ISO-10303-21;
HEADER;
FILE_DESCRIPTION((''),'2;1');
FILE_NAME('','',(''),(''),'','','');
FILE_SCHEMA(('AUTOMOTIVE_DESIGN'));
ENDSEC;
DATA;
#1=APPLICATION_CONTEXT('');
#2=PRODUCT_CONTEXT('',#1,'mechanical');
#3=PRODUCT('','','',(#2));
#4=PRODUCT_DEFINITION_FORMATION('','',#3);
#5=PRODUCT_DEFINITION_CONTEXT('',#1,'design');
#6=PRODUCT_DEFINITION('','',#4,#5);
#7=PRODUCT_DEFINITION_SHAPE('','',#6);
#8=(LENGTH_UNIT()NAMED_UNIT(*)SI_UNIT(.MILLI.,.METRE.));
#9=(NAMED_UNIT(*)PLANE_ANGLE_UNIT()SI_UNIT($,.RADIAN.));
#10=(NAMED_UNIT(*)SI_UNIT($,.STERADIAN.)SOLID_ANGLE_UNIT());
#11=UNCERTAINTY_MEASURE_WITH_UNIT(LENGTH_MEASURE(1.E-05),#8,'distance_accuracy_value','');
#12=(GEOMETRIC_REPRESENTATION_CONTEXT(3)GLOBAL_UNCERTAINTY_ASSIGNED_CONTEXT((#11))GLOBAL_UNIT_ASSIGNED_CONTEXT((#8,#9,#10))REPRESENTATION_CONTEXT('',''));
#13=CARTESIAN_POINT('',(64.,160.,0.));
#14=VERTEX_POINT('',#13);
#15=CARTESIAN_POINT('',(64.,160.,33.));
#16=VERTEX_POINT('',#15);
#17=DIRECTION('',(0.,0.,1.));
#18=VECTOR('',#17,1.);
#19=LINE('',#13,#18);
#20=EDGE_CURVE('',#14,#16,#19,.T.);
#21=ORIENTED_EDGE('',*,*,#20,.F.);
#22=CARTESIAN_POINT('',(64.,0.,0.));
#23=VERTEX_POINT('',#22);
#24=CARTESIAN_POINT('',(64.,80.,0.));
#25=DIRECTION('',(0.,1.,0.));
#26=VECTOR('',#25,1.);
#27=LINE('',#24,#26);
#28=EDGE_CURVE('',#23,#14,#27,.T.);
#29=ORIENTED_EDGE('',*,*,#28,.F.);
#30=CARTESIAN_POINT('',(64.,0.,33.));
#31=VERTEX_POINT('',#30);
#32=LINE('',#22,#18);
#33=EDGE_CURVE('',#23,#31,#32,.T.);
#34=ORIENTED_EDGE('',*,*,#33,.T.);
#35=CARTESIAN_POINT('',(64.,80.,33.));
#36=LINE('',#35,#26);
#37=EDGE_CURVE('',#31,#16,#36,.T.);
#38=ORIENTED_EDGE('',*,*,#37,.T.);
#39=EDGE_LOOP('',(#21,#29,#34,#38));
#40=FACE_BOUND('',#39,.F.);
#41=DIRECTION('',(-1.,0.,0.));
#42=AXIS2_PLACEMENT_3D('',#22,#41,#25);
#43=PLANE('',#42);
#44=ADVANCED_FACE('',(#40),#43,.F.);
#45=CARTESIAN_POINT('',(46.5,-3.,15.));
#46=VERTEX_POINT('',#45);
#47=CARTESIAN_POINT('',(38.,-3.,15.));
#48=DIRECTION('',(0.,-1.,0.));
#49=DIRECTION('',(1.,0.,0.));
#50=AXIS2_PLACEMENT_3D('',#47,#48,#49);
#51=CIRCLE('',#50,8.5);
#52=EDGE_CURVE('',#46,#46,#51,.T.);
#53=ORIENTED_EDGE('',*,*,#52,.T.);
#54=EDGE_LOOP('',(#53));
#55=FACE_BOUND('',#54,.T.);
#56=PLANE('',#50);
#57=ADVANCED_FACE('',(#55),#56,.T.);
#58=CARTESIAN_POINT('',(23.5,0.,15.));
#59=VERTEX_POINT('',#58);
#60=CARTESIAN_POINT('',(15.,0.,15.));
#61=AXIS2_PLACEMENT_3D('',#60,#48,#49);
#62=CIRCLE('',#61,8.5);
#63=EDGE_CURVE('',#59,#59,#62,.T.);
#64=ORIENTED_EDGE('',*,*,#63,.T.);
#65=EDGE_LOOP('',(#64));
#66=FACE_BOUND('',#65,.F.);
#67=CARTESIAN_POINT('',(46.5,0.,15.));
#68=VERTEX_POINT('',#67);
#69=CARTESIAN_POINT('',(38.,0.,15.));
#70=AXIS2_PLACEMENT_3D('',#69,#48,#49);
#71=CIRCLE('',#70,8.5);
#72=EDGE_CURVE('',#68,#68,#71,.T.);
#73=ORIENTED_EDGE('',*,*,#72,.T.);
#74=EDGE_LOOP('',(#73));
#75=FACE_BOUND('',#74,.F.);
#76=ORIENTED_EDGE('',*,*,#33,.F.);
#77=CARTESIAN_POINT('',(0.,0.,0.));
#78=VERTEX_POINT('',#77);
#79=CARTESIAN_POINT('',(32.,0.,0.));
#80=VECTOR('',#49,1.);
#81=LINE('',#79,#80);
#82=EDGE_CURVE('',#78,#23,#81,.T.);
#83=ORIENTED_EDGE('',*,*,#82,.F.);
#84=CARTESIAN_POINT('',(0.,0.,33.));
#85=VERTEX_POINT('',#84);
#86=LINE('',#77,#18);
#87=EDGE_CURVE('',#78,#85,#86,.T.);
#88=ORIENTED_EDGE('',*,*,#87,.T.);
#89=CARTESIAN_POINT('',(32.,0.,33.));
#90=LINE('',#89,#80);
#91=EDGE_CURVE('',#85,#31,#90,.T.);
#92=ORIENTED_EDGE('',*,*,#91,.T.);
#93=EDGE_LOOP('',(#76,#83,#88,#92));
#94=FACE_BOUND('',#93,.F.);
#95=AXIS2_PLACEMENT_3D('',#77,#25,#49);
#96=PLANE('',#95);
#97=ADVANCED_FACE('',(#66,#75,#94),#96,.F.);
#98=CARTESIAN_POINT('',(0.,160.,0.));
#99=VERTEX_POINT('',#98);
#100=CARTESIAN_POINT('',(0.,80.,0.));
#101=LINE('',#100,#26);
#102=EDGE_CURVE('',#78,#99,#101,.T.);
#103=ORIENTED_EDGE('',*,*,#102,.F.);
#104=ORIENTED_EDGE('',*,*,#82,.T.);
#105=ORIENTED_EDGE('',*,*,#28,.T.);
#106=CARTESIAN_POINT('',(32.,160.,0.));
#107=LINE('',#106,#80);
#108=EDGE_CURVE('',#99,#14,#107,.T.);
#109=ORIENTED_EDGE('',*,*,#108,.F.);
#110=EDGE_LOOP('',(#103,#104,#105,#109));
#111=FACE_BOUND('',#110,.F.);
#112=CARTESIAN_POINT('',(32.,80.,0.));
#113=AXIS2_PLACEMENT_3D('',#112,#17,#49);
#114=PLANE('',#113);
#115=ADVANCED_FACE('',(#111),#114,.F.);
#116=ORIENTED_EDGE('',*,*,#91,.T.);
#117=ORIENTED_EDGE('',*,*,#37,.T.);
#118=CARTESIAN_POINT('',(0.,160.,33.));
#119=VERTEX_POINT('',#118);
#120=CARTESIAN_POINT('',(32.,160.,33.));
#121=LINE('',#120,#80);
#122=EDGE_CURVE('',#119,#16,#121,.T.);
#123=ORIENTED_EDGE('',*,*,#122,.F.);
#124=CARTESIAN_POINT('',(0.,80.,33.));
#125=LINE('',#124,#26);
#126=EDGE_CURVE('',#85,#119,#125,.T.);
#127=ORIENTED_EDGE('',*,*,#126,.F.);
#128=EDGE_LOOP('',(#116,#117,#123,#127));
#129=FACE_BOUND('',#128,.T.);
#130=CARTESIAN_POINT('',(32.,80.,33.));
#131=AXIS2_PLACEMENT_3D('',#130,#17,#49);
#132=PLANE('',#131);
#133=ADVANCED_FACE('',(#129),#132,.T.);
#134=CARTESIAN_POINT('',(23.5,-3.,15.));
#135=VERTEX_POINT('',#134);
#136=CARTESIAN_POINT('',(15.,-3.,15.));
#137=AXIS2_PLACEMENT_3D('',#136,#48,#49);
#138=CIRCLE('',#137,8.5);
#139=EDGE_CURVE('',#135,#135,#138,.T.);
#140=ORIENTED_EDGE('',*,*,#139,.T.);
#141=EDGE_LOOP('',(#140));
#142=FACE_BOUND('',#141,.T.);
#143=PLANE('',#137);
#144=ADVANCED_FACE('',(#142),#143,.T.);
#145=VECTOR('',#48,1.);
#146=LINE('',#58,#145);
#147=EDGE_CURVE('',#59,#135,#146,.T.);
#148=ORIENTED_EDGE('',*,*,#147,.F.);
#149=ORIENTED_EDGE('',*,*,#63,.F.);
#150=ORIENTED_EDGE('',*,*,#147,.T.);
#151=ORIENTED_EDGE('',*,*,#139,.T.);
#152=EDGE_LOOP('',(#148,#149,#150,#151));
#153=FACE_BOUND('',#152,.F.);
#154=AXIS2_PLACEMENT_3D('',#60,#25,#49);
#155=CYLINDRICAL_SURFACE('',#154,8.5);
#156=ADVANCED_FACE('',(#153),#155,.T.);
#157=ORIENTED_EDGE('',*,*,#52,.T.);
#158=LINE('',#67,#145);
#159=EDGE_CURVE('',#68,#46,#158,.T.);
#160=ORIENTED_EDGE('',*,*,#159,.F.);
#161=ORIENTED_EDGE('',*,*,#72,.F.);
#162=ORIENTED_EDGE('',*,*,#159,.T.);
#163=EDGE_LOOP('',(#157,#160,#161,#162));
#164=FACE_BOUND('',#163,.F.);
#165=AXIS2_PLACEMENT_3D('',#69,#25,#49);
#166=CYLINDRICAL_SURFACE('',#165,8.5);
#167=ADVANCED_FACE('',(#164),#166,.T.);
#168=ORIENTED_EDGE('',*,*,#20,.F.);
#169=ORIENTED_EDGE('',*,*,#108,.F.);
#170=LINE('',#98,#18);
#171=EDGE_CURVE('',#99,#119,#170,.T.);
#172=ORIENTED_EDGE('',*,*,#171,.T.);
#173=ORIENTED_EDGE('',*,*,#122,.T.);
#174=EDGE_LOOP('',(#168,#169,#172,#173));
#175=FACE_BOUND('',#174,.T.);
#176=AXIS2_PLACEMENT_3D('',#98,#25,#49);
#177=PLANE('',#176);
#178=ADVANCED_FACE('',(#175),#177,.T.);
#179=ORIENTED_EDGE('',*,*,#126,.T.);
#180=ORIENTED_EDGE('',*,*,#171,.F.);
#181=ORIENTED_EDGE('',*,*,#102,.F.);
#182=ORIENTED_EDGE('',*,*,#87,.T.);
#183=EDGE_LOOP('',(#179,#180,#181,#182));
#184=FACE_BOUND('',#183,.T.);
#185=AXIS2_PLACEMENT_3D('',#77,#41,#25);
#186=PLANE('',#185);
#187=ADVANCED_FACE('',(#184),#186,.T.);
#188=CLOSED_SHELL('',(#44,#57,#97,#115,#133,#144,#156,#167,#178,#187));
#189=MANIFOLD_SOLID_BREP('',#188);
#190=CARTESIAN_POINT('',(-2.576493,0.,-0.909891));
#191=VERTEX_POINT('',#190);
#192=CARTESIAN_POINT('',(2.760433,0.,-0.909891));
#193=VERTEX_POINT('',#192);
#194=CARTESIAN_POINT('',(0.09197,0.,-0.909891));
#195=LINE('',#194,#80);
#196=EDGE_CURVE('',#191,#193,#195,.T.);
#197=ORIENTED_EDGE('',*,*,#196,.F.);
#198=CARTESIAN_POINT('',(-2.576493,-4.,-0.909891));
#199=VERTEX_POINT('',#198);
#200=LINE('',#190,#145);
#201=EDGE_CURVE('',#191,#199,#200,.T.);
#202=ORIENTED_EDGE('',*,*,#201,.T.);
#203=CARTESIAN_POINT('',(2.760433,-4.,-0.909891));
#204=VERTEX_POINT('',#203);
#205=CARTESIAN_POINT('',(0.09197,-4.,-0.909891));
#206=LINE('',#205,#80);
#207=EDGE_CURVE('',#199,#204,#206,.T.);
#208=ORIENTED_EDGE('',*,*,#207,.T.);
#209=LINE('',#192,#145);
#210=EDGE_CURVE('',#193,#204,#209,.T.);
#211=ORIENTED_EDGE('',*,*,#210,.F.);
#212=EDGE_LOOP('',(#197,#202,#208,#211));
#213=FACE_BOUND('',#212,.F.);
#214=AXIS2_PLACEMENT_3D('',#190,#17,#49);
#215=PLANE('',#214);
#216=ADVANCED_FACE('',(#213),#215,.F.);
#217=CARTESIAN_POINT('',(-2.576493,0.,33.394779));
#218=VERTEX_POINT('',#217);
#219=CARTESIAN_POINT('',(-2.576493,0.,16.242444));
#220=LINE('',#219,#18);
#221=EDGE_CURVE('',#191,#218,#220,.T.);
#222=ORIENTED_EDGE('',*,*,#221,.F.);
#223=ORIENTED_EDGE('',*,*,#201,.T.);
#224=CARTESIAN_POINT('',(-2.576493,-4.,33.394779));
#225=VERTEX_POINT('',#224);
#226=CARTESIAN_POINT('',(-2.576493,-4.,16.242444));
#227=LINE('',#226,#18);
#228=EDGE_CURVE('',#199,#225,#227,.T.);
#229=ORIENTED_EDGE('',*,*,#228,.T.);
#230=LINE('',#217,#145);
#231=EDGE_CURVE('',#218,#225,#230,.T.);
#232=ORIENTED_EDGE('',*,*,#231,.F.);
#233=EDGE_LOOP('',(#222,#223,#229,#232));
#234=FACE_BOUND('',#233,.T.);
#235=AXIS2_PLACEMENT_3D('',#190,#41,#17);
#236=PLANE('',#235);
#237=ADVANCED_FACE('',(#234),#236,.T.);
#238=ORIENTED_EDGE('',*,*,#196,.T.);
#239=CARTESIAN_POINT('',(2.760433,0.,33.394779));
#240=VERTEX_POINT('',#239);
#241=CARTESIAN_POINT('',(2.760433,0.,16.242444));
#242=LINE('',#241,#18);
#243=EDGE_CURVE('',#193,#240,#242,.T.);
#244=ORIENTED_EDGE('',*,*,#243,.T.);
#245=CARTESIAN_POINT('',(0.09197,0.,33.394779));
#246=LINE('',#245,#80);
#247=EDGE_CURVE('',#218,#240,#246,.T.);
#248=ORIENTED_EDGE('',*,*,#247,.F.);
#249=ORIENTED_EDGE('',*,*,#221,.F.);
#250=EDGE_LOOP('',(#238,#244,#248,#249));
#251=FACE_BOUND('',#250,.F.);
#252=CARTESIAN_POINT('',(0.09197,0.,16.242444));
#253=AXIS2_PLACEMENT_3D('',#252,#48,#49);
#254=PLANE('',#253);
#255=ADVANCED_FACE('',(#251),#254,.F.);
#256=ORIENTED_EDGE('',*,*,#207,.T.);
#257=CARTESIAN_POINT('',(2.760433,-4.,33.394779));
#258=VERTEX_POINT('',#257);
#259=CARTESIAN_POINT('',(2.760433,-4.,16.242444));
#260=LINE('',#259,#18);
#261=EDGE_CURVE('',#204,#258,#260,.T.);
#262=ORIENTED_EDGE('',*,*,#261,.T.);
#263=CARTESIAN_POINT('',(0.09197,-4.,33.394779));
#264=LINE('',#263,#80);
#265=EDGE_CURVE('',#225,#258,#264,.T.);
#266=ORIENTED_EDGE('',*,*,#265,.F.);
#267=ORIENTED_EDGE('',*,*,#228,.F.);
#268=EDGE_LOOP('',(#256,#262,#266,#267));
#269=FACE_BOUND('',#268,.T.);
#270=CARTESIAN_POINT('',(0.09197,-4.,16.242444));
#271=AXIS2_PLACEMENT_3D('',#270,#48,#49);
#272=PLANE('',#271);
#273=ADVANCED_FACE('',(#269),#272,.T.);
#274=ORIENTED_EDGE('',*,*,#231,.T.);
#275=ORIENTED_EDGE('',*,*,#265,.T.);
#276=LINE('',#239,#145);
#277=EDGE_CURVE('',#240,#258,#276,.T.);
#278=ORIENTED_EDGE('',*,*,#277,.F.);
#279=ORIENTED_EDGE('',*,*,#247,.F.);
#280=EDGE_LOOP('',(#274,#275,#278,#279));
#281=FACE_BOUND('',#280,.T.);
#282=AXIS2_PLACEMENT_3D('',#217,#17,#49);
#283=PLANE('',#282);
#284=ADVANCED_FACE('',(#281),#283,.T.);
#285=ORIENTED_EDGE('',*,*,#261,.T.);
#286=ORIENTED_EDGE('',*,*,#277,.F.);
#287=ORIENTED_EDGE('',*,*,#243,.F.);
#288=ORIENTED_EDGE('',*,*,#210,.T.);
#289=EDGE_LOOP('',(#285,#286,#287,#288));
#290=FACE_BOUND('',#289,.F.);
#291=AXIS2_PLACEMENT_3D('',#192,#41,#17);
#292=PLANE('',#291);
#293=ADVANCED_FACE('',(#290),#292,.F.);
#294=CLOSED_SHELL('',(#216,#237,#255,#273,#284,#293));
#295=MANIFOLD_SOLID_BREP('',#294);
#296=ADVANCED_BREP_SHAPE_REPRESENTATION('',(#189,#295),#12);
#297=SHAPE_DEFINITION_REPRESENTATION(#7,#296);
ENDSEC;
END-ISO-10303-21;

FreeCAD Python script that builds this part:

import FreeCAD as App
import Part
import Sketcher
from FreeCAD import Vector


def add_polygon(sketch, points):
    """Adds a closed chain of lines whose ends are joined by coincident constraints."""
    first, n = sketch.GeometryCount, len(points)
    for a, b in zip(points, points[1:] + points[:1]):
        sketch.addGeometry(Part.LineSegment(App.Vector(*a, 0), App.Vector(*b, 0)), False)
    for i in range(n):
        sketch.addConstraint(Sketcher.Constraint("Coincident", first + i, 2, first + (i + 1) % n, 1))

doc = App.newDocument("Part")
params = doc.addObject("Spreadsheet::Sheet", "Params")
for row, (alias, value) in enumerate([
    ("sketch1_width", "64 mm"),
    ("sketch1_height", "160 mm"),
    ("pad1_length", "33 mm"),
    ("sketch2_diameter", "17 mm"),
    ("pad2_length", "3 mm"),
    ("pad3_length", "4 mm"),
], start=1):
    params.set(f"A{row}", alias)
    params.set(f"B{row}", "=" + value)
    params.setAlias(f"B{row}", alias)

body = doc.addObject("PartDesign::Body", "Body")

sketch1 = body.newObject("Sketcher::SketchObject", "Sketch")
sketch1.AttachmentSupport = (doc.getObject("XY_Plane"), [""])
sketch1.MapMode = "FlatFace"
add_polygon(sketch1, [(0, 160), (0, 0), (64, 0), (64, 160)])
sketch1.addConstraint([
    Sketcher.Constraint("Vertical", 0),
    Sketcher.Constraint("Horizontal", 1),
    Sketcher.Constraint("Vertical", 2),
    Sketcher.Constraint("Horizontal", 3),
    Sketcher.Constraint("Coincident", 0, 2, -1, 1),
    Sketcher.Constraint("DistanceX", 1, 1, 1, 2, 64.0),
    Sketcher.Constraint("DistanceY", 0, 2, 0, 1, 160.0),
])
sketch1.setExpression("Constraints[9]", "Params.sketch1_width")
sketch1.setExpression("Constraints[10]", "Params.sketch1_height")
pad1 = body.newObject("PartDesign::Pad", "Pad")
pad1.Profile = sketch1
pad1.setExpression("Length", "Params.pad1_length")

sketch2 = body.newObject("Sketcher::SketchObject", "Sketch001")
sketch2.AttachmentSupport = (doc.getObject("XZ_Plane"), [""])
sketch2.MapMode = "FlatFace"
sketch2.addGeometry([
    Part.Circle(Vector(15, 15, 0), Vector(0, 0, 1), 8),
    Part.Circle(Vector(38, 15, 0), Vector(0, 0, 1), 8),
], False)
sketch2.addConstraint([
    Sketcher.Constraint("Equal", 0, 1),
    Sketcher.Constraint("Horizontal", 0, 3, 1, 3),
    Sketcher.Constraint("Diameter", 0, 17.0),
    Sketcher.Constraint("DistanceX", -1, 1, 0, 3, 15.0),
    Sketcher.Constraint("DistanceY", -1, 1, 0, 3, 15.0),
    Sketcher.Constraint("DistanceX", -1, 1, 1, 3, 38.0),
])
sketch2.setExpression("Constraints[2]", "Params.sketch2_diameter")
pad2 = body.newObject("PartDesign::Pad", "Pad001")
pad2.Profile = sketch2
pad2.setExpression("Length", "Params.pad2_length")
body2 = doc.addObject("PartDesign::Body", "Body001")

sketch3 = body2.newObject("Sketcher::SketchObject", "Sketch002")
sketch3.AttachmentSupport = (doc.getObject("XZ_Plane001"), [""])
sketch3.MapMode = "FlatFace"
add_polygon(sketch3, [(-3, 33), (-3, -1), (3, -1), (3, 33)])
sketch3.addConstraint([
    Sketcher.Constraint("Vertical", 0),
    Sketcher.Constraint("Horizontal", 1),
    Sketcher.Constraint("Vertical", 2),
    Sketcher.Constraint("Horizontal", 3),
    Sketcher.Constraint("DistanceY", 0, 2, 0, 1, 34.30467),
    Sketcher.Constraint("DistanceX", 1, 1, 1, 2, 5.336926),
    Sketcher.Constraint("DistanceY", 0, 2, -1, 1, 0.909891),
    Sketcher.Constraint("DistanceX", 0, 2, -1, 1, 2.576493),
])
pad3 = body2.newObject("PartDesign::Pad", "Pad002")
pad3.Profile = sketch3
pad3.setExpression("Length", "Params.pad3_length")

doc.recompute()
